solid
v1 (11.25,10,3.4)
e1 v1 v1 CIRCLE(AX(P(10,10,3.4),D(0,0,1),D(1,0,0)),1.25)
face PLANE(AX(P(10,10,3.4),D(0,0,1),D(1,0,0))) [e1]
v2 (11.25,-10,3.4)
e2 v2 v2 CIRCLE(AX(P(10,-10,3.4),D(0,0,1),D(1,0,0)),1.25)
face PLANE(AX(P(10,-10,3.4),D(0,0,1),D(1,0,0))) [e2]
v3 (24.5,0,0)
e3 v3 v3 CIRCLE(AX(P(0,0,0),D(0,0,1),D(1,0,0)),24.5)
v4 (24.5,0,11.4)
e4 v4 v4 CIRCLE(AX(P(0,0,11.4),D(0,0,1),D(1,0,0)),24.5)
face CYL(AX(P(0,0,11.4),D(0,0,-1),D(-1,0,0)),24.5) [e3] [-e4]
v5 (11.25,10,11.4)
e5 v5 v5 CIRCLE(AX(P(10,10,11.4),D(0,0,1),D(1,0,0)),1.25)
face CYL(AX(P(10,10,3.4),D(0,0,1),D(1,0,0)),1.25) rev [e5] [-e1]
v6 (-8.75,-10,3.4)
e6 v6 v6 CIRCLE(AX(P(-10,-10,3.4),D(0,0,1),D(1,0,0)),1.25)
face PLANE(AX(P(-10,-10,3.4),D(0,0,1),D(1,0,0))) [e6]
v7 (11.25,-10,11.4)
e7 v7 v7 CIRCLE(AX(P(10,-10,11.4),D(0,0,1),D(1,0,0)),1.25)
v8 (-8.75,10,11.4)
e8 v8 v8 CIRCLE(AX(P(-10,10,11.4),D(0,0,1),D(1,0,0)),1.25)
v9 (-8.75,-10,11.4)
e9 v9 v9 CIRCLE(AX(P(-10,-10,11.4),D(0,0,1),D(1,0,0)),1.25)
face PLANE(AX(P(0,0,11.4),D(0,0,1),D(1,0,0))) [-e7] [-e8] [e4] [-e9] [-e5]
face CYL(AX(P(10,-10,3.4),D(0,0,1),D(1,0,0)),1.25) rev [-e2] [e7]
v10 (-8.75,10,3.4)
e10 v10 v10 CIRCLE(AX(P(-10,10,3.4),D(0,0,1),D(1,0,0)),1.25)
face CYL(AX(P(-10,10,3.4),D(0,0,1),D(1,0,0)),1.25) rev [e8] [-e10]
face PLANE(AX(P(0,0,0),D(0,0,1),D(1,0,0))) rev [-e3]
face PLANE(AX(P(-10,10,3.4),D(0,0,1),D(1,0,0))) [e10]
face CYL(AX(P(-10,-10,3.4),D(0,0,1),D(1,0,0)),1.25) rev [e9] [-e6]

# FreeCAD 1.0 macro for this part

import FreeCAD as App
import Part
import Sketcher

V = App.Vector

doc = App.newDocument("Part")
body = doc.addObject("PartDesign::Body", "Body")

# Sketch on XY plane
sketch1 = body.newObject("Sketcher::SketchObject", "Sketch")
sketch1.AttachmentSupport = (doc.getObject("XY_Plane"), [""])
sketch1.MapMode = "FlatFace"
sketch1.addGeometry(Part.Circle(V(0, 0, 0), V(0, 0, 1), 24), False)
sketch1.addConstraint(Sketcher.Constraint("Coincident", 0, 3, -1, 1))
sketch1.addConstraint(Sketcher.Constraint("Diameter", 0, 49.0))
pad1 = body.newObject("PartDesign::Pad", "Pad")
pad1.Profile = sketch1
pad1.Length = 11.4

# Sketch on XY plane
sketch2 = body.newObject("Sketcher::SketchObject", "Sketch001")
sketch2.AttachmentSupport = (doc.getObject("XY_Plane"), [""])
sketch2.MapMode = "FlatFace"
sketch2.AttachmentOffset = App.Placement(V(0, 0, 11.4), App.Rotation())
sketch2.addGeometry(Part.Circle(V(-10, 10, 0), V(0, 0, 1), 1.2), False)
sketch2.addGeometry(Part.Circle(V(10, 10, 0), V(0, 0, 1), 1.2), False)
sketch2.addGeometry(Part.Circle(V(-10, -10, 0), V(0, 0, 1), 1.2), False)
sketch2.addGeometry(Part.Circle(V(10, -10, 0), V(0, 0, 1), 1.2), False)
sketch2.addConstraint(Sketcher.Constraint("Equal", 0, 1))
sketch2.addConstraint(Sketcher.Constraint("Equal", 1, 2))
sketch2.addConstraint(Sketcher.Constraint("Equal", 2, 3))
sketch2.addConstraint(Sketcher.Constraint("Symmetric", 1, 3, 2, 3, -1, 1))
sketch2.addConstraint(Sketcher.Constraint("Symmetric", 0, 3, 3, 3, -1, 1))
sketch2.addConstraint(Sketcher.Constraint("Symmetric", 0, 3, 1, 3, -2))
sketch2.addConstraint(Sketcher.Constraint("Diameter", 0, 2.5))
sketch2.addConstraint(Sketcher.Constraint("DistanceX", 0, 3, -1, 1, 10.0))
sketch2.addConstraint(Sketcher.Constraint("DistanceY", -1, 1, 0, 3, 10.0))
pocket1 = body.newObject("PartDesign::Pocket", "Pocket")
pocket1.Profile = sketch2
pocket1.Length = 8

doc.recompute()
